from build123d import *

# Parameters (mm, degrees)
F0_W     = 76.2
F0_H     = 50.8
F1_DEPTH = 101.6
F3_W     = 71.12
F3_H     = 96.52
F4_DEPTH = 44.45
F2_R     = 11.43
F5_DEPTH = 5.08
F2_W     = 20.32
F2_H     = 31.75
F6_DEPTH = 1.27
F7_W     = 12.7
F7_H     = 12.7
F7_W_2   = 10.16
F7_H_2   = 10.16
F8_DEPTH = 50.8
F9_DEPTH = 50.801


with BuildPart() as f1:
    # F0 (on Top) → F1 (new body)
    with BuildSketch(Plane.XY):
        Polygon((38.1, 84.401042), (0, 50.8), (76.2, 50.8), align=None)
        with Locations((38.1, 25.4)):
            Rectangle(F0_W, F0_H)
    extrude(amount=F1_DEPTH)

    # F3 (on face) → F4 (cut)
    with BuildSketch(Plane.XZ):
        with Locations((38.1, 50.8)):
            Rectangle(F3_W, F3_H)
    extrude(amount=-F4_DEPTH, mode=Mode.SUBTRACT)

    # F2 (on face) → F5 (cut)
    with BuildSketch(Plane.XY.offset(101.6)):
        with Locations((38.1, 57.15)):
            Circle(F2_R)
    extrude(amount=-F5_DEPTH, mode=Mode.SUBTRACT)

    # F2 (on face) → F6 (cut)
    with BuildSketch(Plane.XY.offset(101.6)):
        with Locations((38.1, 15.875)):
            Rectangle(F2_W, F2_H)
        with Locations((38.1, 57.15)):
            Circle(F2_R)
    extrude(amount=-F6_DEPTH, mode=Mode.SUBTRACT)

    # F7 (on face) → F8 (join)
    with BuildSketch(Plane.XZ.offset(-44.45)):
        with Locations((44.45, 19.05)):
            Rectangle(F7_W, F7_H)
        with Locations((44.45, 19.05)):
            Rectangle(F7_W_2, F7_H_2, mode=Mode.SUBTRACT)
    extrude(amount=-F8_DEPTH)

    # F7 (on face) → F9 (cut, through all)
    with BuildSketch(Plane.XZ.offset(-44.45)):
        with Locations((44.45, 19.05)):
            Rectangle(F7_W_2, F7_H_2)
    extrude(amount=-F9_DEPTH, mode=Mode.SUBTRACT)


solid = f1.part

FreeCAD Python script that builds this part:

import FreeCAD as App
import Part
import Sketcher

V = App.Vector
Q = App.Units.Quantity


def add_polygon(sketch, points):
    """Adds a closed chain of lines whose ends are joined by coincident constraints."""
    first, n = sketch.GeometryCount, len(points)
    for a, b in zip(points, points[1:] + points[:1]):
        sketch.addGeometry(Part.LineSegment(App.Vector(*a, 0), App.Vector(*b, 0)), False)
    for i in range(n):
        sketch.addConstraint(Sketcher.Constraint("Coincident", first + i, 2, first + (i + 1) % n, 1))

doc = App.newDocument("Part")
body = doc.addObject("PartDesign::Body", "Body")

# Sketch on XY plane
sketch1 = body.newObject("Sketcher::SketchObject", "Sketch")
sketch1.AttachmentSupport = (doc.getObject("XY_Plane"), [""])
sketch1.MapMode = "FlatFace"
add_polygon(sketch1, [(38, 84), (0, 51), (0, 0), (76, 0), (76, 51)])  # lines 0-4
sketch1.addConstraint([
    Sketcher.Constraint("Vertical", 1),
    Sketcher.Constraint("Horizontal", 2),
    Sketcher.Constraint("Vertical", 3),
    Sketcher.Constraint("Coincident", 1, 2, -1, 1),
    Sketcher.Constraint("Horizontal", 0, 2, 3, 2),
    Sketcher.Constraint("Equal", 0, 4),
    Sketcher.Constraint("DistanceX", 2, 1, 2, 2, Q("3 in")),
    Sketcher.Constraint("DistanceY", 1, 2, 1, 1, Q("2 in")),
    Sketcher.Constraint("Distance", 0, Q("2 in")),
])
pad1 = body.newObject("PartDesign::Pad", "Pad")
pad1.Profile = sketch1
pad1.Length = Q("4 in")

# Sketch on XZ plane
sketch2 = body.newObject("Sketcher::SketchObject", "Sketch001")
sketch2.AttachmentSupport = (doc.getObject("XZ_Plane"), [""])
sketch2.MapMode = "FlatFace"
add_polygon(sketch2, [(3, 99), (3, 3), (74, 3), (74, 99)])  # lines 0-3
sketch2.addConstraint([
    Sketcher.Constraint("Vertical", 0),
    Sketcher.Constraint("Horizontal", 1),
    Sketcher.Constraint("Vertical", 2),
    Sketcher.Constraint("Horizontal", 3),
    Sketcher.Constraint("DistanceX", 1, 1, 1, 2, Q("2.8 in")),
    Sketcher.Constraint("DistanceY", 0, 2, 0, 1, Q("3.8 in")),
    Sketcher.Constraint("DistanceX", -1, 1, 0, 2, Q("0.1 in")),
    Sketcher.Constraint("DistanceY", -1, 1, 0, 2, Q("0.1 in")),
])
pocket1 = body.newObject("PartDesign::Pocket", "Pocket")
pocket1.Profile = sketch2
pocket1.Length = Q("1.75 in")

# Sketch on XY plane
sketch3 = body.newObject("Sketcher::SketchObject", "Sketch002")
sketch3.AttachmentSupport = (doc.getObject("XY_Plane"), [""])
sketch3.MapMode = "FlatFace"
sketch3.AttachmentOffset = App.Placement(V(0, 0, 4 * 25.4), App.Rotation())
sketch3.addGeometry(Part.Circle(V(38, 57, 0), V(0, 0, 1), 11), False)
sketch3.addConstraint([
    Sketcher.Constraint("Diameter", 0, Q("0.9 in")),
    Sketcher.Constraint("DistanceX", -1, 1, 0, 3, Q("1.5 in")),
    Sketcher.Constraint("DistanceY", -1, 1, 0, 3, Q("2.25 in")),
])
pocket2 = body.newObject("PartDesign::Pocket", "Pocket001")
pocket2.Profile = sketch3
pocket2.Length = Q("0.2 in")

# Sketch on XY plane
sketch4 = body.newObject("Sketcher::SketchObject", "Sketch003")
sketch4.AttachmentSupport = (doc.getObject("XY_Plane"), [""])
sketch4.MapMode = "FlatFace"
sketch4.AttachmentOffset = App.Placement(V(0, 0, 4 * 25.4), App.Rotation())
add_polygon(sketch4, [(28, 32), (28, 0), (48, 0), (48, 32)])  # lines 0-3
sketch4.addGeometry(Part.Circle(V(38, 57, 0), V(0, 0, 1), 11), False)  # 4
sketch4.addConstraint([
    Sketcher.Constraint("Vertical", 0),
    Sketcher.Constraint("Horizontal", 1),
    Sketcher.Constraint("Vertical", 2),
    Sketcher.Constraint("Horizontal", 3),
    Sketcher.Constraint("PointOnObject", 0, 2, -1),
    Sketcher.Constraint("Diameter", 4, Q("0.9 in")),
    Sketcher.Constraint("DistanceX", 1, 1, 1, 2, Q("0.8 in")),
    Sketcher.Constraint("DistanceY", 2, 2, 4, 3, Q("1 in")),
    Sketcher.Constraint("DistanceY", 0, 2, 0, 1, Q("1.25 in")),
    Sketcher.Constraint("DistanceX", -1, 1, 4, 3, Q("1.5 in")),
    Sketcher.Constraint("DistanceX", -1, 1, 0, 2, Q("1.1 in")),
])
pocket3 = body.newObject("PartDesign::Pocket", "Pocket002")
pocket3.Profile = sketch4
pocket3.Length = Q("0.05 in")

# Sketch on XZ plane
sketch5 = body.newObject("Sketcher::SketchObject", "Sketch004")
sketch5.AttachmentSupport = (doc.getObject("XZ_Plane"), [""])
sketch5.MapMode = "FlatFace"
sketch5.AttachmentOffset = App.Placement(V(0, 0, -1.75 * 25.4), App.Rotation())
add_polygon(sketch5, [(38, 25), (38, 13), (51, 13), (51, 25)])  # lines 0-3
add_polygon(sketch5, [(50, 14), (39, 14), (39, 24), (50, 24)])  # lines 4-7
sketch5.addConstraint([
    Sketcher.Constraint("Vertical", 0),
    Sketcher.Constraint("Horizontal", 1),
    Sketcher.Constraint("Vertical", 2),
    Sketcher.Constraint("Horizontal", 3),
    Sketcher.Constraint("Horizontal", 4),
    Sketcher.Constraint("Vertical", 5),
    Sketcher.Constraint("Horizontal", 6),
    Sketcher.Constraint("Vertical", 7),
    Sketcher.Constraint("Equal", 3, 0),
    Sketcher.Constraint("Equal", 6, 5),
    Sketcher.Constraint("DistanceX", 1, 1, 1, 2, Q("0.5 in")),
    Sketcher.Constraint("DistanceX", 4, 2, 4, 1, Q("0.4 in")),
    Sketcher.Constraint("DistanceX", -1, 1, 1, 2, Q("2 in")),
    Sketcher.Constraint("DistanceY", -1, 1, 2, 2, Q("1 in")),
    Sketcher.Constraint("DistanceX", -1, 1, 4, 2, Q("1.55 in")),
    Sketcher.Constraint("DistanceY", -1, 1, 4, 2, Q("0.55 in")),
])
pad2 = body.newObject("PartDesign::Pad", "Pad001")
pad2.Profile = sketch5
pad2.Length = Q("2 in")
pad2.Reversed = True

# Sketch on XZ plane
sketch6 = body.newObject("Sketcher::SketchObject", "Sketch005")
sketch6.AttachmentSupport = (doc.getObject("XZ_Plane"), [""])
sketch6.MapMode = "FlatFace"
sketch6.AttachmentOffset = App.Placement(V(0, 0, -1.75 * 25.4), App.Rotation())
add_polygon(sketch6, [(39, 24), (39, 14), (50, 14), (50, 24)])  # lines 0-3
sketch6.addConstraint([
    Sketcher.Constraint("Vertical", 0),
    Sketcher.Constraint("Horizontal", 1),
    Sketcher.Constraint("Vertical", 2),
    Sketcher.Constraint("Horizontal", 3),
    Sketcher.Constraint("Equal", 3, 0),
    Sketcher.Constraint("DistanceX", 1, 1, 1, 2, Q("0.4 in")),
    Sketcher.Constraint("DistanceX", -1, 1, 0, 2, Q("1.55 in")),
    Sketcher.Constraint("DistanceY", -1, 1, 0, 2, Q("0.55 in")),
])
pocket4 = body.newObject("PartDesign::Pocket", "Pocket003")
pocket4.Profile = sketch6
pocket4.Type = "ThroughAll"

doc.recompute()
